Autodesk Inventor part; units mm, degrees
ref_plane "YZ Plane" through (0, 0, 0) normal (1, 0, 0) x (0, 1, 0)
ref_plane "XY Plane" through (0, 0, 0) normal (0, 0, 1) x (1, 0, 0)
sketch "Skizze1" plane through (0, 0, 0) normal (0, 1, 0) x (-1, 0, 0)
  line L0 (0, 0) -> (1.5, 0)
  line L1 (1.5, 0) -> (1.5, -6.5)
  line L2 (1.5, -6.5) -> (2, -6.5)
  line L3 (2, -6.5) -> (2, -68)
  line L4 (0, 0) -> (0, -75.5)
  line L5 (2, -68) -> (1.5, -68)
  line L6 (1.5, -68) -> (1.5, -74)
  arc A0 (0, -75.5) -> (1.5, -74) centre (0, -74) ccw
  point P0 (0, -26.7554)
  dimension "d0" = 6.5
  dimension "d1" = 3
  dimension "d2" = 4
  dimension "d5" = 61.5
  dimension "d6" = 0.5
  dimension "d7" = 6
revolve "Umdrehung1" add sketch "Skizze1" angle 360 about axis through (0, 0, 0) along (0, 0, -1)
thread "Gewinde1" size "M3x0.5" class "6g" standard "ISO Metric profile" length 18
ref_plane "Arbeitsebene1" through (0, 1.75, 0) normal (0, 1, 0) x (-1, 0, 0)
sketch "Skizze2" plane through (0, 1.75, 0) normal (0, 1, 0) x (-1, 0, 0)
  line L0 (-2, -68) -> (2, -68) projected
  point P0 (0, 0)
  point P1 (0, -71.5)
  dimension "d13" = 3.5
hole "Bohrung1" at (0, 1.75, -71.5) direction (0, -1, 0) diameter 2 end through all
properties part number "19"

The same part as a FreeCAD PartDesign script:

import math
import FreeCAD as App
import Part
import Sketcher
from FreeCAD import Vector
Q = App.Units.Quantity

doc = App.newDocument("Part")
body = doc.addObject("PartDesign::Body", "Body")

# Sketch on XZ plane
sketch1 = body.newObject("Sketcher::SketchObject", "Sketch")
sketch1.AttachmentSupport = (doc.getObject("XZ_Plane"), [""])
sketch1.MapMode = "FlatFace"
sketch1.addGeometry(Part.LineSegment(Vector(-1.5, 0, 0), Vector(0, 0, 0)), False)
sketch1.addGeometry(Part.LineSegment(Vector(0, 0, 0), Vector(0, -75.5, 0)), False)
sketch1.addGeometry(Part.ArcOfCircle(Part.Circle(Vector(0, -74, 0), Vector(0, 0, 1), 1.5), math.radians(180), math.radians(270)), False)
sketch1.addGeometry(Part.LineSegment(Vector(-1.5, -74, 0), Vector(-1.5, -68, 0)), False)
sketch1.addGeometry(Part.LineSegment(Vector(-1.5, -68, 0), Vector(-2, -68, 0)), False)
sketch1.addGeometry(Part.LineSegment(Vector(-2, -68, 0), Vector(-2, -6.5, 0)), False)
sketch1.addGeometry(Part.LineSegment(Vector(-2, -6.5, 0), Vector(-1.5, -6.5, 0)), False)
sketch1.addGeometry(Part.LineSegment(Vector(-1.5, -6.5, 0), Vector(-1.5, 0, 0)), False)
sketch1.addConstraint(Sketcher.Constraint("Coincident", 0, 2, 1, 1))
sketch1.addConstraint(Sketcher.Constraint("Coincident", 1, 2, 2, 2))
sketch1.addConstraint(Sketcher.Constraint("Tangent", 2, 1, 3, 1))
sketch1.addConstraint(Sketcher.Constraint("Coincident", 3, 2, 4, 1))
sketch1.addConstraint(Sketcher.Constraint("Coincident", 4, 2, 5, 1))
sketch1.addConstraint(Sketcher.Constraint("Coincident", 5, 2, 6, 1))
sketch1.addConstraint(Sketcher.Constraint("Coincident", 6, 2, 7, 1))
sketch1.addConstraint(Sketcher.Constraint("Coincident", 7, 2, 0, 1))
sketch1.addConstraint(Sketcher.Constraint("Horizontal", 0))
sketch1.addConstraint(Sketcher.Constraint("Vertical", 1))
sketch1.addConstraint(Sketcher.Constraint("Vertical", 3))
sketch1.addConstraint(Sketcher.Constraint("Horizontal", 4))
sketch1.addConstraint(Sketcher.Constraint("Vertical", 5))
sketch1.addConstraint(Sketcher.Constraint("Horizontal", 6))
sketch1.addConstraint(Sketcher.Constraint("Vertical", 7))
sketch1.addConstraint(Sketcher.Constraint("Coincident", 0, 2, -1, 1))
sketch1.addConstraint(Sketcher.Constraint("PointOnObject", 2, 3, -2))
sketch1.addConstraint(Sketcher.Constraint("Vertical", 3, 2, 6, 2))
sketch1.addConstraint(Sketcher.Constraint("Radius", 2, Q("1.5 mm")))
sketch1.addConstraint(Sketcher.Constraint("DistanceY", 3, 1, 3, 2, Q("6 mm")))
sketch1.addConstraint(Sketcher.Constraint("DistanceX", 4, 2, 4, 1, Q("0.5 mm")))
sketch1.addConstraint(Sketcher.Constraint("DistanceY", 5, 1, 5, 2, Q("61.5 mm")))
sketch1.addConstraint(Sketcher.Constraint("DistanceY", 7, 1, 7, 2, Q("6.5 mm")))
revolution = body.newObject("PartDesign::Revolution", "Revolution")
revolution.Profile = sketch1
revolution.ReferenceAxis = (sketch1, ["V_Axis"])
revolution.Angle = 360

# Sketch on XZ plane
sketch2 = body.newObject("Sketcher::SketchObject", "Sketch001")
sketch2.AttachmentSupport = (doc.getObject("XZ_Plane"), [""])
sketch2.MapMode = "FlatFace"
sketch2.AttachmentOffset = App.Placement(Vector(0, 0, -1.75), App.Rotation())
sketch2.addGeometry(Part.Circle(Vector(0, -71.5, 0), Vector(0, 0, 1), 1), False)
sketch2.addConstraint(Sketcher.Constraint("PointOnObject", 0, 3, -2))
sketch2.addConstraint(Sketcher.Constraint("Diameter", 0, Q("2 mm")))
sketch2.addConstraint(Sketcher.Constraint("DistanceY", 0, 3, -1, 1, Q("71.5 mm")))
doc.recompute()
hole = body.newObject("PartDesign::Hole", "Hole")
hole.Profile = sketch2
hole.ThreadType = "None"
hole.Diameter = 2
hole.DepthType = "ThroughAll"
hole.Reversed = True

doc.recompute()
